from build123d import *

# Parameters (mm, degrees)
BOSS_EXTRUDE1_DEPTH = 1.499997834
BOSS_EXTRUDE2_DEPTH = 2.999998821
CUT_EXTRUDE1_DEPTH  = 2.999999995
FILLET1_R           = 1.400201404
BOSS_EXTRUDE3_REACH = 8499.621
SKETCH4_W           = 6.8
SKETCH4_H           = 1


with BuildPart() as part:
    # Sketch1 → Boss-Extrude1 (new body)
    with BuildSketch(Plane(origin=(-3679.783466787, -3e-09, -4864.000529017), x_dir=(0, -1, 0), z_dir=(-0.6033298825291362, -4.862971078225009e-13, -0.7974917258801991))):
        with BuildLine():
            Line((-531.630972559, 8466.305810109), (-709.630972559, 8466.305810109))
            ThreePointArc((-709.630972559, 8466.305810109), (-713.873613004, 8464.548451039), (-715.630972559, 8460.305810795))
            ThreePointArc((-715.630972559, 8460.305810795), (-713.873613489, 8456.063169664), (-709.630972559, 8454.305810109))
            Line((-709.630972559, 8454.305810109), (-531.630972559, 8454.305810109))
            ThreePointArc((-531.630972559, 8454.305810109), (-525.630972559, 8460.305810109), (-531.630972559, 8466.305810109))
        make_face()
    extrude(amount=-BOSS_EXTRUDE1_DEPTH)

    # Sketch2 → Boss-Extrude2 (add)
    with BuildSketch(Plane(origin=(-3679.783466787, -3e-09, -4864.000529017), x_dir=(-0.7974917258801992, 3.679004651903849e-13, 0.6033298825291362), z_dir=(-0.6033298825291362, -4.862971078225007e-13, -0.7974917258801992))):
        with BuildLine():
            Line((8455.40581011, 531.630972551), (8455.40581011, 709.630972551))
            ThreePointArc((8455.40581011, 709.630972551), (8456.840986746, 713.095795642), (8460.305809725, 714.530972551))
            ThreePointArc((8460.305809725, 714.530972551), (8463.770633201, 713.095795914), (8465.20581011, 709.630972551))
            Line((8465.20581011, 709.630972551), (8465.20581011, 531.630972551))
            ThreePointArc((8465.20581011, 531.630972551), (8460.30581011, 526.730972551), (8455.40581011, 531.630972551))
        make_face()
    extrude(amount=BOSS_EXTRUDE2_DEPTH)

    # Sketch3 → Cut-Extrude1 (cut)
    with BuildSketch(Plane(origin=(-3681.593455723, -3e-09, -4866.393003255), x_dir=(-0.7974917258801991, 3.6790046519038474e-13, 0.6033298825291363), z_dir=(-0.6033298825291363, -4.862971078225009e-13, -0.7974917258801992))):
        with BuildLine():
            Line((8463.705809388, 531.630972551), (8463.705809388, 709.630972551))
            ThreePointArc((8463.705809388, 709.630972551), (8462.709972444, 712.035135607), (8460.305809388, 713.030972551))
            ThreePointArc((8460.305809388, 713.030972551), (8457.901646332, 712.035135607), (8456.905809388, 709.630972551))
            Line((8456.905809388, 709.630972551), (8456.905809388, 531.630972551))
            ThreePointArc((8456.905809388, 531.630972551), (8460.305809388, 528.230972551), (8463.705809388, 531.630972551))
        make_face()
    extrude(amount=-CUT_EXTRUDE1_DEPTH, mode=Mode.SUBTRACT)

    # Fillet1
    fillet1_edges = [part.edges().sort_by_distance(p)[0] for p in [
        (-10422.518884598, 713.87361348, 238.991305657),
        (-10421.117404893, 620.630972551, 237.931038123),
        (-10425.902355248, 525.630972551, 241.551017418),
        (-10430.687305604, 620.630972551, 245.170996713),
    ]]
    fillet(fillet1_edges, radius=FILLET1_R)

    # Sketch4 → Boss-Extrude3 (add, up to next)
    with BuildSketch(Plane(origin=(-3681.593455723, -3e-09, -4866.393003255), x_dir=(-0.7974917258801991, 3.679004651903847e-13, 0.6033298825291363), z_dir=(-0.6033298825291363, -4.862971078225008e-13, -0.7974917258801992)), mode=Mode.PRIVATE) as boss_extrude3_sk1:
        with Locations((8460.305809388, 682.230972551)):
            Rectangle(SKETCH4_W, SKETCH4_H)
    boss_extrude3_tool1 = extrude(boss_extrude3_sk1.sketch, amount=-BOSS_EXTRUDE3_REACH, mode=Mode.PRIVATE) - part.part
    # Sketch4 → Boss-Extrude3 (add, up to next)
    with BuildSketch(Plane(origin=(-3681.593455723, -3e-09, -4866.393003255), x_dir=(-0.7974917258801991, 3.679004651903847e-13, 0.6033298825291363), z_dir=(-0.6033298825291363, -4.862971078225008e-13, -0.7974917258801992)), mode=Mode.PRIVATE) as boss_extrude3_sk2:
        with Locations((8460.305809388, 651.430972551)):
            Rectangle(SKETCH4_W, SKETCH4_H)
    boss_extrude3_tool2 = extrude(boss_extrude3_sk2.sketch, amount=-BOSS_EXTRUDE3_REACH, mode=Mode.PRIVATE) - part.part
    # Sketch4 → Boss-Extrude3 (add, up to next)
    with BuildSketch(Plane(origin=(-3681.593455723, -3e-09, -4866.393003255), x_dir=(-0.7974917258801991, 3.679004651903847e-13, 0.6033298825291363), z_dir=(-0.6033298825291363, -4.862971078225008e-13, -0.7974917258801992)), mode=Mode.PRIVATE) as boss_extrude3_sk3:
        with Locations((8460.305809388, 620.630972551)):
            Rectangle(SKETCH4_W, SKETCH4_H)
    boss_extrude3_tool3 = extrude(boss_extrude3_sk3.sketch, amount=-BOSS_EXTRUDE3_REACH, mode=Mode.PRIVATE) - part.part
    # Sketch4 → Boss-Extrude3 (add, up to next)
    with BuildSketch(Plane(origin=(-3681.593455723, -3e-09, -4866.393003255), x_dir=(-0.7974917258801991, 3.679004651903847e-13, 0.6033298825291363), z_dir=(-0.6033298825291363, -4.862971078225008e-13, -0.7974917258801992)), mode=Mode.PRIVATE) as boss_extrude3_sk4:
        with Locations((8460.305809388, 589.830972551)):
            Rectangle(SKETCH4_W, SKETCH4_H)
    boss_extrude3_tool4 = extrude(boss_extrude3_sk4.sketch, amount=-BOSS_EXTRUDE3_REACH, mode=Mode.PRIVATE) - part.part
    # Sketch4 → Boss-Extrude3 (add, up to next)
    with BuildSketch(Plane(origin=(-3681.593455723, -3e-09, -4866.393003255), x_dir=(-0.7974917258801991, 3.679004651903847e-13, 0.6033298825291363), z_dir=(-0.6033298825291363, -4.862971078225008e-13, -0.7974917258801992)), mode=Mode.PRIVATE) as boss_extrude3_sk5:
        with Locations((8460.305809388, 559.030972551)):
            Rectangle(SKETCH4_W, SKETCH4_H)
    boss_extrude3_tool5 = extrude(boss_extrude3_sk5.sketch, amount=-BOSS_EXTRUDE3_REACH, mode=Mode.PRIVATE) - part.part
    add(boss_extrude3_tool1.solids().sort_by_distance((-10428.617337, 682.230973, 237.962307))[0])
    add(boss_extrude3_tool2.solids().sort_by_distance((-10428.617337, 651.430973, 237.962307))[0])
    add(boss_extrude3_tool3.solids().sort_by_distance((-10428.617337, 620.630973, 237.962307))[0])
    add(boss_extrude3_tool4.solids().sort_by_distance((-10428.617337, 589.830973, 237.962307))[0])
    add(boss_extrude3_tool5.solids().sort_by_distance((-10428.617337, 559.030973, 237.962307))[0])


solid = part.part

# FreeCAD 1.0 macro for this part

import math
import FreeCAD as App
import Part
import Sketcher


def edges_at(feature, points):
    """Names of the edges that pass closest to the given points."""
    edges = feature.Shape.Edges
    near = lambda p: min(range(len(edges)), key=lambda i: edges[i].distToShape(Part.Vertex(*p))[0])
    return sorted({f"Edge{near(p) + 1}" for p in points})


def add_polygon(sketch, points):
    """Adds a closed chain of lines whose ends are joined by coincident constraints."""
    first, n = sketch.GeometryCount, len(points)
    for a, b in zip(points, points[1:] + points[:1]):
        sketch.addGeometry(Part.LineSegment(App.Vector(*a, 0), App.Vector(*b, 0)), False)
    for i in range(n):
        sketch.addConstraint(Sketcher.Constraint("Coincident", first + i, 2, first + (i + 1) % n, 1))

doc = App.newDocument("Part")
body = doc.addObject("PartDesign::Body", "Body")

# Sketch on an angled plane
sketch1 = body.newObject("Sketcher::SketchObject", "Sketch")
sketch1.Placement = App.Placement(App.Vector(-3679.783467, 0, -4864.000529), App.Rotation(App.Vector(0, -1, 0), App.Vector(-0.797491726, 0, 0.603329883), App.Vector(-0.603329883, 0, -0.797491726), "ZXY"))
sketch1.addGeometry(Part.LineSegment(App.Vector(-531.630973, 8466.305817, 0), App.Vector(-709.630973, 8466.305817, 0)), False)
sketch1.addGeometry(Part.ArcOfCircle(Part.Circle(App.Vector(-709.630973, 8460.305817, 0), App.Vector(0, 0, 1), 6), math.radians(90), math.radians(179.999993)), False)
sketch1.addGeometry(Part.ArcOfCircle(Part.Circle(App.Vector(-709.630973, 8460.305817, 0), App.Vector(0, 0, 1), 6), math.radians(179.999993), math.radians(270)), False)
sketch1.addGeometry(Part.LineSegment(App.Vector(-709.630973, 8454.305817, 0), App.Vector(-531.630973, 8454.305817, 0)), False)
sketch1.addGeometry(Part.ArcOfCircle(Part.Circle(App.Vector(-531.630973, 8460.305817, 0), App.Vector(0, 0, 1), 6), math.radians(-90), math.radians(90)), False)
sketch1.addConstraint(Sketcher.Constraint("Tangent", 0, 2, 1, 1))
sketch1.addConstraint(Sketcher.Constraint("Tangent", 1, 2, 2, 1))
sketch1.addConstraint(Sketcher.Constraint("Tangent", 2, 2, 3, 1))
sketch1.addConstraint(Sketcher.Constraint("Tangent", 3, 2, 4, 1))
sketch1.addConstraint(Sketcher.Constraint("Tangent", 4, 2, 0, 1))
sketch1.addConstraint(Sketcher.Constraint("Horizontal", 0))
sketch1.addConstraint(Sketcher.Constraint("Horizontal", 3))
sketch1.addConstraint(Sketcher.Constraint("Equal", 1, 2))
sketch1.addConstraint(Sketcher.Constraint("Horizontal", 4, 3, 1, 2))
sketch1.addConstraint(Sketcher.Constraint("Radius", 1, 6.0))
sketch1.addConstraint(Sketcher.Constraint("DistanceX", 0, 2, 0, 1, 178.0))
sketch1.addConstraint(Sketcher.Constraint("DistanceX", 1, 3, -1, 1, 709.630973))
sketch1.addConstraint(Sketcher.Constraint("DistanceY", -1, 1, 1, 3, 8460.305817))
pad1 = body.newObject("PartDesign::Pad", "Pad")
pad1.Profile = sketch1
pad1.Length = 1.499998
pad1.Reversed = True

# Sketch on an angled plane
sketch2 = body.newObject("Sketcher::SketchObject", "Sketch001")
sketch2.Placement = App.Placement(App.Vector(-3679.783467, 0, -4864.000529), App.Rotation(App.Vector(-0.797491726, 0, 0.603329883), App.Vector(0, 1.000000001, 0), App.Vector(-0.603329883, 0, -0.797491726), "ZXY"))
sketch2.addGeometry(Part.LineSegment(App.Vector(8455.405817, 709.630974, 0), App.Vector(8455.405817, 531.630973, 0)), False)
sketch2.addGeometry(Part.ArcOfCircle(Part.Circle(App.Vector(8460.305817, 531.630973, 0), App.Vector(0, 0, 1), 4.9), math.radians(180), math.radians(360)), False)
sketch2.addGeometry(Part.LineSegment(App.Vector(8465.205817, 531.630973, 0), App.Vector(8465.205817, 709.630974, 0)), False)
sketch2.addGeometry(Part.ArcOfCircle(Part.Circle(App.Vector(8460.305817, 709.630974, 0), App.Vector(0, 0, 1), 4.9), math.radians(0), math.radians(90.000004)), False)
sketch2.addGeometry(Part.ArcOfCircle(Part.Circle(App.Vector(8460.305817, 709.630974, 0), App.Vector(0, 0, 1), 4.9), math.radians(90.000005), math.radians(180)), False)
sketch2.addConstraint(Sketcher.Constraint("Tangent", 0, 2, 1, 1))
sketch2.addConstraint(Sketcher.Constraint("Tangent", 1, 2, 2, 1))
sketch2.addConstraint(Sketcher.Constraint("Tangent", 2, 2, 3, 1))
sketch2.addConstraint(Sketcher.Constraint("Tangent", 3, 2, 4, 1))
sketch2.addConstraint(Sketcher.Constraint("Tangent", 4, 2, 0, 1))
sketch2.addConstraint(Sketcher.Constraint("Vertical", 0))
sketch2.addConstraint(Sketcher.Constraint("Vertical", 2))
sketch2.addConstraint(Sketcher.Constraint("Equal", 1, 3))
sketch2.addConstraint(Sketcher.Constraint("Vertical", 4, 3, 3, 2))
sketch2.addConstraint(Sketcher.Constraint("Radius", 1, 4.9))
sketch2.addConstraint(Sketcher.Constraint("DistanceY", 0, 2, 0, 1, 178.0))
sketch2.addConstraint(Sketcher.Constraint("DistanceX", -1, 1, 1, 3, 8460.305817))
sketch2.addConstraint(Sketcher.Constraint("DistanceY", -1, 1, 1, 3, 531.630973))
pad2 = body.newObject("PartDesign::Pad", "Pad001")
pad2.Profile = sketch2
pad2.Length = 2.999999

# Sketch on an angled plane
sketch3 = body.newObject("Sketcher::SketchObject", "Sketch002")
sketch3.Placement = App.Placement(App.Vector(-3681.593456, 0, -4866.393003), App.Rotation(App.Vector(-0.797491726, 0, 0.603329883), App.Vector(0, 1.000000001, 0), App.Vector(-0.603329883, 0, -0.797491726), "ZXY"))
sketch3.addGeometry(Part.LineSegment(App.Vector(8463.705816, 531.630973, 0), App.Vector(8463.705816, 709.630974, 0)), False)
sketch3.addGeometry(Part.ArcOfCircle(Part.Circle(App.Vector(8460.305816, 709.630974, 0), App.Vector(0, 0, 1), 3.4), math.radians(0), math.radians(90)), False)
sketch3.addGeometry(Part.ArcOfCircle(Part.Circle(App.Vector(8460.305816, 709.630974, 0), App.Vector(0, 0, 1), 3.4), math.radians(90), math.radians(180)), False)
sketch3.addGeometry(Part.LineSegment(App.Vector(8456.905816, 709.630974, 0), App.Vector(8456.905816, 531.630973, 0)), False)
sketch3.addGeometry(Part.ArcOfCircle(Part.Circle(App.Vector(8460.305816, 531.630973, 0), App.Vector(0, 0, 1), 3.4), math.radians(180), math.radians(360)), False)
sketch3.addConstraint(Sketcher.Constraint("Tangent", 0, 2, 1, 1))
sketch3.addConstraint(Sketcher.Constraint("Tangent", 1, 2, 2, 1))
sketch3.addConstraint(Sketcher.Constraint("Tangent", 2, 2, 3, 1))
sketch3.addConstraint(Sketcher.Constraint("Tangent", 3, 2, 4, 1))
sketch3.addConstraint(Sketcher.Constraint("Tangent", 4, 2, 0, 1))
sketch3.addConstraint(Sketcher.Constraint("Vertical", 0))
sketch3.addConstraint(Sketcher.Constraint("Vertical", 3))
sketch3.addConstraint(Sketcher.Constraint("Equal", 1, 2))
sketch3.addConstraint(Sketcher.Constraint("Vertical", 4, 3, 1, 2))
sketch3.addConstraint(Sketcher.Constraint("Radius", 1, 3.4))
sketch3.addConstraint(Sketcher.Constraint("DistanceY", 0, 1, 0, 2, 178.0))
sketch3.addConstraint(Sketcher.Constraint("DistanceX", -1, 1, 1, 3, 8460.305816))
sketch3.addConstraint(Sketcher.Constraint("DistanceY", -1, 1, 1, 3, 709.630974))
pocket1 = body.newObject("PartDesign::Pocket", "Pocket")
pocket1.Profile = sketch3
pocket1.Length = 3
doc.recompute()

fillet = body.newObject("PartDesign::Fillet", "Fillet")
fillet.Base = (pocket1, edges_at(pocket1, [
    (-10422.519, 713.874, 238.991),
    (-10421.117, 620.631, 237.931),
    (-10425.902, 525.631, 241.551),
    (-10430.687, 620.631, 245.171),
]))
fillet.Radius = 1.400201

# Sketch on an angled plane
sketch4 = body.newObject("Sketcher::SketchObject", "Sketch003")
sketch4.Placement = App.Placement(App.Vector(-3681.593456, 0, -4866.393003), App.Rotation(App.Vector(-0.797491726, 0, 0.603329883), App.Vector(0, 1.000000001, 0), App.Vector(-0.603329883, 0, -0.797491726), "ZXY"))
add_polygon(sketch4, [(8456.905816, 682.730974), (8456.905816, 681.730974), (8463.705816, 681.730974), (8463.705816, 682.730974)])  # lines 0-3
sketch4.addConstraint(Sketcher.Constraint("Vertical", 0))
sketch4.addConstraint(Sketcher.Constraint("Horizontal", 1))
sketch4.addConstraint(Sketcher.Constraint("Vertical", 2))
sketch4.addConstraint(Sketcher.Constraint("Horizontal", 3))
sketch4.addConstraint(Sketcher.Constraint("DistanceY", 0, 2, 0, 1, 1.0))
sketch4.addConstraint(Sketcher.Constraint("DistanceX", 1, 1, 1, 2, 6.8))
sketch4.addConstraint(Sketcher.Constraint("DistanceX", -1, 1, 0, 2, 8456.905816))
sketch4.addConstraint(Sketcher.Constraint("DistanceY", -1, 1, 0, 2, 681.730974))
pad3 = body.newObject("PartDesign::Pad", "Pad002")
pad3.Profile = sketch4
pad3.Type = "UpToFirst"
pad3.Reversed = True

# Sketch on an angled plane
sketch5 = body.newObject("Sketcher::SketchObject", "Sketch004")
sketch5.Placement = App.Placement(App.Vector(-3681.593456, 0, -4866.393003), App.Rotation(App.Vector(-0.797491726, 0, 0.603329883), App.Vector(0, 1.000000001, 0), App.Vector(-0.603329883, 0, -0.797491726), "ZXY"))
add_polygon(sketch5, [(8456.905816, 651.930974), (8456.905816, 650.930974), (8463.705816, 650.930974), (8463.705816, 651.930974)])  # lines 0-3
sketch5.addConstraint(Sketcher.Constraint("Vertical", 0))
sketch5.addConstraint(Sketcher.Constraint("Horizontal", 1))
sketch5.addConstraint(Sketcher.Constraint("Vertical", 2))
sketch5.addConstraint(Sketcher.Constraint("Horizontal", 3))
sketch5.addConstraint(Sketcher.Constraint("DistanceY", 0, 2, 0, 1, 1.0))
sketch5.addConstraint(Sketcher.Constraint("DistanceX", 1, 1, 1, 2, 6.8))
sketch5.addConstraint(Sketcher.Constraint("DistanceX", -1, 1, 0, 2, 8456.905816))
sketch5.addConstraint(Sketcher.Constraint("DistanceY", -1, 1, 0, 2, 650.930974))
pad4 = body.newObject("PartDesign::Pad", "Pad003")
pad4.Profile = sketch5
pad4.Type = "UpToFirst"
pad4.Reversed = True

# Sketch on an angled plane
sketch6 = body.newObject("Sketcher::SketchObject", "Sketch005")
sketch6.Placement = App.Placement(App.Vector(-3681.593456, 0, -4866.393003), App.Rotation(App.Vector(-0.797491726, 0, 0.603329883), App.Vector(0, 1.000000001, 0), App.Vector(-0.603329883, 0, -0.797491726), "ZXY"))
add_polygon(sketch6, [(8456.905816, 621.130973), (8456.905816, 620.130973), (8463.705816, 620.130973), (8463.705816, 621.130973)])  # lines 0-3
sketch6.addConstraint(Sketcher.Constraint("Vertical", 0))
sketch6.addConstraint(Sketcher.Constraint("Horizontal", 1))
sketch6.addConstraint(Sketcher.Constraint("Vertical", 2))
sketch6.addConstraint(Sketcher.Constraint("Horizontal", 3))
sketch6.addConstraint(Sketcher.Constraint("DistanceY", 0, 2, 0, 1, 1.0))
sketch6.addConstraint(Sketcher.Constraint("DistanceX", 1, 1, 1, 2, 6.8))
sketch6.addConstraint(Sketcher.Constraint("DistanceX", -1, 1, 0, 2, 8456.905816))
sketch6.addConstraint(Sketcher.Constraint("DistanceY", -1, 1, 0, 2, 620.130973))
pad5 = body.newObject("PartDesign::Pad", "Pad004")
pad5.Profile = sketch6
pad5.Type = "UpToFirst"
pad5.Reversed = True

# Sketch on an angled plane
sketch7 = body.newObject("Sketcher::SketchObject", "Sketch006")
sketch7.Placement = App.Placement(App.Vector(-3681.593456, 0, -4866.393003), App.Rotation(App.Vector(-0.797491726, 0, 0.603329883), App.Vector(0, 1.000000001, 0), App.Vector(-0.603329883, 0, -0.797491726), "ZXY"))
add_polygon(sketch7, [(8456.905816, 590.330973), (8456.905816, 589.330973), (8463.705816, 589.330973), (8463.705816, 590.330973)])  # lines 0-3
sketch7.addConstraint(Sketcher.Constraint("Vertical", 0))
sketch7.addConstraint(Sketcher.Constraint("Horizontal", 1))
sketch7.addConstraint(Sketcher.Constraint("Vertical", 2))
sketch7.addConstraint(Sketcher.Constraint("Horizontal", 3))
sketch7.addConstraint(Sketcher.Constraint("DistanceY", 0, 2, 0, 1, 1.0))
sketch7.addConstraint(Sketcher.Constraint("DistanceX", 1, 1, 1, 2, 6.8))
sketch7.addConstraint(Sketcher.Constraint("DistanceX", -1, 1, 0, 2, 8456.905816))
sketch7.addConstraint(Sketcher.Constraint("DistanceY", -1, 1, 0, 2, 589.330973))
pad6 = body.newObject("PartDesign::Pad", "Pad005")
pad6.Profile = sketch7
pad6.Type = "UpToFirst"
pad6.Reversed = True

# Sketch on an angled plane
sketch8 = body.newObject("Sketcher::SketchObject", "Sketch007")
sketch8.Placement = App.Placement(App.Vector(-3681.593456, 0, -4866.393003), App.Rotation(App.Vector(-0.797491726, 0, 0.603329883), App.Vector(0, 1.000000001, 0), App.Vector(-0.603329883, 0, -0.797491726), "ZXY"))
add_polygon(sketch8, [(8456.905816, 559.530973), (8456.905816, 558.530973), (8463.705816, 558.530973), (8463.705816, 559.530973)])  # lines 0-3
sketch8.addConstraint(Sketcher.Constraint("Vertical", 0))
sketch8.addConstraint(Sketcher.Constraint("Horizontal", 1))
sketch8.addConstraint(Sketcher.Constraint("Vertical", 2))
sketch8.addConstraint(Sketcher.Constraint("Horizontal", 3))
sketch8.addConstraint(Sketcher.Constraint("DistanceY", 0, 2, 0, 1, 1.0))
sketch8.addConstraint(Sketcher.Constraint("DistanceX", 1, 1, 1, 2, 6.8))
sketch8.addConstraint(Sketcher.Constraint("DistanceX", -1, 1, 0, 2, 8456.905816))
sketch8.addConstraint(Sketcher.Constraint("DistanceY", -1, 1, 0, 2, 558.530973))
pad7 = body.newObject("PartDesign::Pad", "Pad006")
pad7.Profile = sketch8
pad7.Type = "UpToFirst"
pad7.Reversed = True

doc.recompute()
